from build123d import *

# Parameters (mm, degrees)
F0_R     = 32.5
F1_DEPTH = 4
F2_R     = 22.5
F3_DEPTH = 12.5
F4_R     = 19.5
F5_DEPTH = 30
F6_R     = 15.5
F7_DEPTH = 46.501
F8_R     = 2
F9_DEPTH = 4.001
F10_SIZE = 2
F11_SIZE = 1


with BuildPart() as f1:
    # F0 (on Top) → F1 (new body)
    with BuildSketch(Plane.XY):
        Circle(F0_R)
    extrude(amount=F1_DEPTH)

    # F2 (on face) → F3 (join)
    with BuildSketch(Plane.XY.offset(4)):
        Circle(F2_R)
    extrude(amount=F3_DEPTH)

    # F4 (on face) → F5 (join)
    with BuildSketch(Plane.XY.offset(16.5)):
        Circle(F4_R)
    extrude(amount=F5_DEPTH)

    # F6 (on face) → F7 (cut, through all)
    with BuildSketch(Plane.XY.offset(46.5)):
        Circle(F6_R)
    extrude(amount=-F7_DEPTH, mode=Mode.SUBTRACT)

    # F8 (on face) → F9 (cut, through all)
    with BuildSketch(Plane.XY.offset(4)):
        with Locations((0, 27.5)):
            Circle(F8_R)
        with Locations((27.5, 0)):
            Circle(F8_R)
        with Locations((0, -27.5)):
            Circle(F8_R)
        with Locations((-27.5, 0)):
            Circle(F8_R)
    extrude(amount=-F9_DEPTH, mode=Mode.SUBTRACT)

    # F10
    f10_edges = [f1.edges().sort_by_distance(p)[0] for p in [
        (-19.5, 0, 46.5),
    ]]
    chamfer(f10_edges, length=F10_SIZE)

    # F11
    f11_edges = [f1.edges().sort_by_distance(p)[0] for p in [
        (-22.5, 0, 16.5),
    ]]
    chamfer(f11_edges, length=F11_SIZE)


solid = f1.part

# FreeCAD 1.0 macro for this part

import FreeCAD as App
import Part
import Sketcher
Q = App.Units.Quantity


def edges_at(feature, points):
    """Names of the edges that pass closest to the given points."""
    edges = feature.Shape.Edges
    near = lambda p: min(range(len(edges)), key=lambda i: edges[i].distToShape(Part.Vertex(*p))[0])
    return sorted({f"Edge{near(p) + 1}" for p in points})

doc = App.newDocument("Part")
params = doc.addObject("Spreadsheet::Sheet", "Params")
for row, (alias, value) in enumerate([
    ("sketch1_diameter", "65 mm"),
    ("pad1_length", "4 mm"),
    ("sketch2_diameter", "45 mm"),
    ("pad2_length", "12.5 mm"),
    ("sketch3_diameter", "39 mm"),
    ("pad3_length", "30 mm"),
    ("sketch4_diameter", "31 mm"),
    ("sketch5_diameter", "4 mm"),
    ("chamfer_size", "2 mm"),
    ("chamfer2_size", "1 mm"),
], start=1):
    params.set(f"A{row}", alias)
    params.set(f"B{row}", "=" + value)
    params.setAlias(f"B{row}", alias)

body = doc.addObject("PartDesign::Body", "Body")

# Sketch on XY plane
sketch1 = body.newObject("Sketcher::SketchObject", "Sketch")
sketch1.AttachmentSupport = (doc.getObject("XY_Plane"), [""])
sketch1.MapMode = "FlatFace"
sketch1.addGeometry(Part.Circle(App.Vector(0, 0, 0), App.Vector(0, 0, 1), 32), False)
sketch1.addConstraint(Sketcher.Constraint("Coincident", 0, 3, -1, 1))
sketch1.addConstraint(Sketcher.Constraint("Diameter", 0, Q("65 mm")))
sketch1.setExpression("Constraints[1]", "Params.sketch1_diameter")
pad1 = body.newObject("PartDesign::Pad", "Pad")
pad1.Profile = sketch1
pad1.setExpression("Length", "Params.pad1_length")

# Sketch on XY plane
sketch2 = body.newObject("Sketcher::SketchObject", "Sketch001")
sketch2.AttachmentSupport = (doc.getObject("XY_Plane"), [""])
sketch2.MapMode = "FlatFace"
sketch2.AttachmentOffset = App.Placement(App.Vector(0, 0, 4), App.Rotation())
sketch2.addGeometry(Part.Circle(App.Vector(0, 0, 0), App.Vector(0, 0, 1), 22), False)
sketch2.addConstraint(Sketcher.Constraint("Coincident", 0, 3, -1, 1))
sketch2.addConstraint(Sketcher.Constraint("Diameter", 0, Q("45 mm")))
sketch2.setExpression("Constraints[1]", "Params.sketch2_diameter")
pad2 = body.newObject("PartDesign::Pad", "Pad001")
pad2.Profile = sketch2
pad2.setExpression("Length", "Params.pad2_length")

# Sketch on XY plane
sketch3 = body.newObject("Sketcher::SketchObject", "Sketch002")
sketch3.AttachmentSupport = (doc.getObject("XY_Plane"), [""])
sketch3.MapMode = "FlatFace"
sketch3.AttachmentOffset = App.Placement(App.Vector(0, 0, 16.5), App.Rotation())
sketch3.addGeometry(Part.Circle(App.Vector(0, 0, 0), App.Vector(0, 0, 1), 20), False)
sketch3.addConstraint(Sketcher.Constraint("Coincident", 0, 3, -1, 1))
sketch3.addConstraint(Sketcher.Constraint("Diameter", 0, Q("39 mm")))
sketch3.setExpression("Constraints[1]", "Params.sketch3_diameter")
pad3 = body.newObject("PartDesign::Pad", "Pad002")
pad3.Profile = sketch3
pad3.setExpression("Length", "Params.pad3_length")

# Sketch on XY plane
sketch4 = body.newObject("Sketcher::SketchObject", "Sketch003")
sketch4.AttachmentSupport = (doc.getObject("XY_Plane"), [""])
sketch4.MapMode = "FlatFace"
sketch4.AttachmentOffset = App.Placement(App.Vector(0, 0, 46.5), App.Rotation())
sketch4.addGeometry(Part.Circle(App.Vector(0, 0, 0), App.Vector(0, 0, 1), 16), False)
sketch4.addConstraint(Sketcher.Constraint("Coincident", 0, 3, -1, 1))
sketch4.addConstraint(Sketcher.Constraint("Diameter", 0, Q("31 mm")))
sketch4.setExpression("Constraints[1]", "Params.sketch4_diameter")
pocket1 = body.newObject("PartDesign::Pocket", "Pocket")
pocket1.Profile = sketch4
pocket1.Type = "ThroughAll"

# Sketch on XY plane
sketch5 = body.newObject("Sketcher::SketchObject", "Sketch004")
sketch5.AttachmentSupport = (doc.getObject("XY_Plane"), [""])
sketch5.MapMode = "FlatFace"
sketch5.AttachmentOffset = App.Placement(App.Vector(0, 0, 4), App.Rotation())
sketch5.addGeometry(Part.Circle(App.Vector(0, 27.5, 0), App.Vector(0, 0, 1), 2), False)
sketch5.addGeometry(Part.Circle(App.Vector(27.5, 0, 0), App.Vector(0, 0, 1), 2), False)
sketch5.addGeometry(Part.Circle(App.Vector(0, -27.5, 0), App.Vector(0, 0, 1), 2), False)
sketch5.addGeometry(Part.Circle(App.Vector(-27.5, 0, 0), App.Vector(0, 0, 1), 2), False)
sketch5.addConstraint(Sketcher.Constraint("Equal", 0, 1))
sketch5.addConstraint(Sketcher.Constraint("Equal", 1, 2))
sketch5.addConstraint(Sketcher.Constraint("Equal", 2, 3))
sketch5.addConstraint(Sketcher.Constraint("Symmetric", 0, 3, 2, 3, -1, 1))
sketch5.addConstraint(Sketcher.Constraint("Symmetric", 1, 3, 3, 3, -1, 1))
sketch5.addConstraint(Sketcher.Constraint("PointOnObject", 0, 3, -2))
sketch5.addConstraint(Sketcher.Constraint("PointOnObject", 1, 3, -1))
sketch5.addConstraint(Sketcher.Constraint("Diameter", 0, Q("4 mm")))
sketch5.addConstraint(Sketcher.Constraint("DistanceY", 2, 3, 0, 3, Q("55 mm")))
sketch5.addConstraint(Sketcher.Constraint("DistanceX", 3, 3, 1, 3, Q("55 mm")))
sketch5.setExpression("Constraints[7]", "Params.sketch5_diameter")
pocket2 = body.newObject("PartDesign::Pocket", "Pocket001")
pocket2.Profile = sketch5
pocket2.Type = "ThroughAll"
doc.recompute()

chamfer = body.newObject("PartDesign::Chamfer", "Chamfer")
chamfer.Base = (pocket2, edges_at(pocket2, [(-19.5, 0, 46.5)]))
chamfer.setExpression("Size", "Params.chamfer_size")
doc.recompute()

chamfer2 = body.newObject("PartDesign::Chamfer", "Chamfer001")
chamfer2.Base = (chamfer, edges_at(chamfer, [(-22.5, 0, 16.5)]))
chamfer2.setExpression("Size", "Params.chamfer2_size")

doc.recompute()
